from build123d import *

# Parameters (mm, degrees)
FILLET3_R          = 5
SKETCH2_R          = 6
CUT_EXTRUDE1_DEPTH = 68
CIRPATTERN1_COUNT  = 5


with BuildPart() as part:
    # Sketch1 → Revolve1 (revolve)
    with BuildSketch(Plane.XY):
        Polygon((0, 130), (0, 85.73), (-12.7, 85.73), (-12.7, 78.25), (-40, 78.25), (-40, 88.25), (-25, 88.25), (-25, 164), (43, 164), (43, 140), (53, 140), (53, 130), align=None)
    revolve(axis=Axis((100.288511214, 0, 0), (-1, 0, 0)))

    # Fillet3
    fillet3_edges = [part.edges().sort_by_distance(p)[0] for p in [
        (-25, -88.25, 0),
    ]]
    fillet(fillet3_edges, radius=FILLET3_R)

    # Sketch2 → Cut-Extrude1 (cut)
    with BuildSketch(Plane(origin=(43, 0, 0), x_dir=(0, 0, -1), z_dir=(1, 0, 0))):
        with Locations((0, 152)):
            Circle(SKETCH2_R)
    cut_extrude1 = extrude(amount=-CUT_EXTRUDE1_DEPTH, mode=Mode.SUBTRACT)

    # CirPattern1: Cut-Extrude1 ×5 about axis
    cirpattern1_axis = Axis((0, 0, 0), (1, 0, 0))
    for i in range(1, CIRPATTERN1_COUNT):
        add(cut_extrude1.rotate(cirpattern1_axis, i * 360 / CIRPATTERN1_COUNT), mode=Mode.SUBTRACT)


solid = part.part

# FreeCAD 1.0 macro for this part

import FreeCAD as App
import Part
import Sketcher
from FreeCAD import Vector
Q = App.Units.Quantity


def edges_at(feature, points):
    """Names of the edges that pass closest to the given points."""
    edges = feature.Shape.Edges
    near = lambda p: min(range(len(edges)), key=lambda i: edges[i].distToShape(Part.Vertex(*p))[0])
    return sorted({f"Edge{near(p) + 1}" for p in points})

doc = App.newDocument("Part")
body = doc.addObject("PartDesign::Body", "Body")

# Sketch on XY plane
sketch1 = body.newObject("Sketcher::SketchObject", "Sketch")
sketch1.AttachmentSupport = (doc.getObject("XY_Plane"), [""])
sketch1.MapMode = "FlatFace"
sketch1.addGeometry([
    Part.LineSegment(Vector(0, 85.73, 0), Vector(0, 130, 0)),  # 0
    Part.LineSegment(Vector(0, 130, 0), Vector(53, 130, 0)),  # 1
    Part.LineSegment(Vector(53, 130, 0), Vector(53, 140, 0)),  # 2
    Part.LineSegment(Vector(53, 140, 0), Vector(43, 140, 0)),  # 3
    Part.LineSegment(Vector(43, 140, 0), Vector(43, 164, 0)),  # 4
    Part.LineSegment(Vector(43, 164, 0), Vector(-25, 164, 0)),  # 5
    Part.LineSegment(Vector(-25, 164, 0), Vector(-25, 88.25, 0)),  # 6
    Part.LineSegment(Vector(-25, 88.25, 0), Vector(-40, 88.25, 0)),  # 7
    Part.LineSegment(Vector(-40, 88.25, 0), Vector(-40, 78.25, 0)),  # 8
    Part.LineSegment(Vector(-40, 78.25, 0), Vector(-12.7, 78.25, 0)),  # 9
    Part.LineSegment(Vector(-12.7, 78.25, 0), Vector(-12.7, 85.73, 0)),  # 10
    Part.LineSegment(Vector(-12.7, 85.73, 0), Vector(0, 85.73, 0)),  # 11
], False)
sketch1.addConstraint([
    Sketcher.Constraint("Coincident", 0, 2, 1, 1),
    Sketcher.Constraint("Coincident", 1, 2, 2, 1),
    Sketcher.Constraint("Coincident", 2, 2, 3, 1),
    Sketcher.Constraint("Coincident", 3, 2, 4, 1),
    Sketcher.Constraint("Coincident", 4, 2, 5, 1),
    Sketcher.Constraint("Coincident", 5, 2, 6, 1),
    Sketcher.Constraint("Coincident", 6, 2, 7, 1),
    Sketcher.Constraint("Coincident", 7, 2, 8, 1),
    Sketcher.Constraint("Coincident", 8, 2, 9, 1),
    Sketcher.Constraint("Coincident", 9, 2, 10, 1),
    Sketcher.Constraint("Coincident", 10, 2, 11, 1),
    Sketcher.Constraint("Coincident", 11, 2, 0, 1),
    Sketcher.Constraint("Vertical", 0),
    Sketcher.Constraint("Horizontal", 1),
    Sketcher.Constraint("Vertical", 2),
    Sketcher.Constraint("Horizontal", 3),
    Sketcher.Constraint("Vertical", 4),
    Sketcher.Constraint("Horizontal", 5),
    Sketcher.Constraint("Vertical", 6),
    Sketcher.Constraint("Horizontal", 7),
    Sketcher.Constraint("Vertical", 8),
    Sketcher.Constraint("Horizontal", 9),
    Sketcher.Constraint("Vertical", 10),
    Sketcher.Constraint("Horizontal", 11),
    Sketcher.Constraint("PointOnObject", 0, 2, -2),
    Sketcher.Constraint("Equal", 3, 2),
    Sketcher.Constraint("Equal", 2, 8),
    Sketcher.Constraint("DistanceX", 1, 1, 1, 2, Q("53 mm")),
    Sketcher.Constraint("DistanceX", 3, 2, 3, 1, Q("10 mm")),
    Sketcher.Constraint("DistanceX", 5, 2, 5, 1, Q("68 mm")),
    Sketcher.Constraint("DistanceX", 7, 2, 7, 1, Q("15 mm")),
    Sketcher.Constraint("DistanceY", 4, 1, 4, 2, Q("24 mm")),
    Sketcher.Constraint("DistanceX", 9, 1, 9, 2, Q("27.3 mm")),
    Sketcher.Constraint("DistanceY", -1, 1, 0, 2, Q("130 mm")),
    Sketcher.Constraint("DistanceY", 0, 1, 0, 2, Q("44.27 mm")),
    Sketcher.Constraint("DistanceY", 6, 2, 6, 1, Q("75.75 mm")),
])
revolution = body.newObject("PartDesign::Revolution", "Revolution")
revolution.Profile = sketch1
revolution.ReferenceAxis = (sketch1, ["H_Axis"])
revolution.Angle = 360
doc.recompute()

fillet = body.newObject("PartDesign::Fillet", "Fillet")
fillet.Base = (revolution, edges_at(revolution, [(-25, -88.25, 0)]))
fillet.Radius = 5

# Sketch on YZ plane
sketch2 = body.newObject("Sketcher::SketchObject", "Sketch001")
sketch2.AttachmentSupport = (doc.getObject("YZ_Plane"), [""])
sketch2.MapMode = "FlatFace"
sketch2.AttachmentOffset = App.Placement(Vector(0, 0, 43), App.Rotation())
sketch2.addGeometry(Part.Circle(Vector(152, 0, 0), Vector(0, 0, 1), 6), False)
sketch2.addConstraint([
    Sketcher.Constraint("PointOnObject", 0, 3, -1),
    Sketcher.Constraint("Diameter", 0, Q("12 mm")),
    Sketcher.Constraint("DistanceX", -1, 1, 0, 3, Q("152 mm")),
])
pocket1 = body.newObject("PartDesign::Pocket", "Pocket")
pocket1.Profile = sketch2
pocket1.Length = 68
doc.recompute()

polarpattern = body.newObject("PartDesign::PolarPattern", "PolarPattern")
polarpattern.Originals = [pocket1]
polarpattern.Axis = (doc.getObject("X_Axis"), [""])
polarpattern.Angle = 360
polarpattern.Occurrences = 5
body.Tip = polarpattern

doc.recompute()
